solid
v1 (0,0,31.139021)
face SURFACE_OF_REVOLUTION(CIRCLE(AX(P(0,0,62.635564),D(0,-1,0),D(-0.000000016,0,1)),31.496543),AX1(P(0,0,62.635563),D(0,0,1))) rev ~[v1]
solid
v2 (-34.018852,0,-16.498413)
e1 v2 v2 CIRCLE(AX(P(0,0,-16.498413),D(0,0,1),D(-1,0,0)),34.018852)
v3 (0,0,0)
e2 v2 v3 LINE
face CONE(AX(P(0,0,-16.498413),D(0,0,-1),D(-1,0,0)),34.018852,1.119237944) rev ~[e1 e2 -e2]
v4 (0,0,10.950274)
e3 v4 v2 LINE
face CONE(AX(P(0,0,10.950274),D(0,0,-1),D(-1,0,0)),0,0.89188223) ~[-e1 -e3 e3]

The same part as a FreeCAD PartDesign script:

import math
import FreeCAD as App
import Part
import Sketcher
Q = App.Units.Quantity


def add_polygon(sketch, points):
    """Adds a closed chain of lines whose ends are joined by coincident constraints."""
    first, n = sketch.GeometryCount, len(points)
    for a, b in zip(points, points[1:] + points[:1]):
        sketch.addGeometry(Part.LineSegment(App.Vector(*a, 0), App.Vector(*b, 0)), False)
    for i in range(n):
        sketch.addConstraint(Sketcher.Constraint("Coincident", first + i, 2, first + (i + 1) % n, 1))

doc = App.newDocument("Part")
body = doc.addObject("PartDesign::Body", "Body")
body.AllowCompound = True

# Sketch on XZ plane
sketch1 = body.newObject("Sketcher::SketchObject", "Sketch")
sketch1.AttachmentSupport = (doc.getObject("XZ_Plane"), [""])
sketch1.MapMode = "FlatFace"
sketch1.addGeometry(Part.LineSegment(App.Vector(0, 31.139021, 0), App.Vector(0, 94.132106, 0)), False)  # 0
sketch1.addGeometry(Part.ArcOfCircle(Part.Circle(App.Vector(0, 62.635564, 0), App.Vector(0, 0, 1), 31.496543), math.radians(90.000001), math.radians(269.999999)), False)  # 1
add_polygon(sketch1, [(0, 0), (0, 10.950274), (-34.018852, -16.498413)])  # lines 2-4
sketch1.addConstraint([
    Sketcher.Constraint("Coincident", 0, 1, 1, 2),
    Sketcher.Constraint("Coincident", 1, 1, 0, 2),
    Sketcher.Constraint("Vertical", 0),
    Sketcher.Constraint("Vertical", 2),
    Sketcher.Constraint("Coincident", 4, 2, -1, 1),
    Sketcher.Constraint("PointOnObject", 1, 3, -2),
    Sketcher.Constraint("PointOnObject", 0, 1, -2),
    Sketcher.Constraint("Radius", 1, Q("31.496543 mm")),
    Sketcher.Constraint("Distance", 3, Q("43.7117 mm")),
    Sketcher.Constraint("DistanceY", 2, 1, 2, 2, Q("10.950274 mm")),
    Sketcher.Constraint("DistanceY", -1, 1, 0, 1, Q("31.139021 mm")),
    Sketcher.Constraint("DistanceY", 3, 2, 1, 1, Q("110.630519 mm")),
])
revolution = body.newObject("PartDesign::Revolution", "Revolution")
revolution.Profile = sketch1
revolution.ReferenceAxis = (sketch1, ["V_Axis"])
revolution.Angle = 360

doc.recompute()
